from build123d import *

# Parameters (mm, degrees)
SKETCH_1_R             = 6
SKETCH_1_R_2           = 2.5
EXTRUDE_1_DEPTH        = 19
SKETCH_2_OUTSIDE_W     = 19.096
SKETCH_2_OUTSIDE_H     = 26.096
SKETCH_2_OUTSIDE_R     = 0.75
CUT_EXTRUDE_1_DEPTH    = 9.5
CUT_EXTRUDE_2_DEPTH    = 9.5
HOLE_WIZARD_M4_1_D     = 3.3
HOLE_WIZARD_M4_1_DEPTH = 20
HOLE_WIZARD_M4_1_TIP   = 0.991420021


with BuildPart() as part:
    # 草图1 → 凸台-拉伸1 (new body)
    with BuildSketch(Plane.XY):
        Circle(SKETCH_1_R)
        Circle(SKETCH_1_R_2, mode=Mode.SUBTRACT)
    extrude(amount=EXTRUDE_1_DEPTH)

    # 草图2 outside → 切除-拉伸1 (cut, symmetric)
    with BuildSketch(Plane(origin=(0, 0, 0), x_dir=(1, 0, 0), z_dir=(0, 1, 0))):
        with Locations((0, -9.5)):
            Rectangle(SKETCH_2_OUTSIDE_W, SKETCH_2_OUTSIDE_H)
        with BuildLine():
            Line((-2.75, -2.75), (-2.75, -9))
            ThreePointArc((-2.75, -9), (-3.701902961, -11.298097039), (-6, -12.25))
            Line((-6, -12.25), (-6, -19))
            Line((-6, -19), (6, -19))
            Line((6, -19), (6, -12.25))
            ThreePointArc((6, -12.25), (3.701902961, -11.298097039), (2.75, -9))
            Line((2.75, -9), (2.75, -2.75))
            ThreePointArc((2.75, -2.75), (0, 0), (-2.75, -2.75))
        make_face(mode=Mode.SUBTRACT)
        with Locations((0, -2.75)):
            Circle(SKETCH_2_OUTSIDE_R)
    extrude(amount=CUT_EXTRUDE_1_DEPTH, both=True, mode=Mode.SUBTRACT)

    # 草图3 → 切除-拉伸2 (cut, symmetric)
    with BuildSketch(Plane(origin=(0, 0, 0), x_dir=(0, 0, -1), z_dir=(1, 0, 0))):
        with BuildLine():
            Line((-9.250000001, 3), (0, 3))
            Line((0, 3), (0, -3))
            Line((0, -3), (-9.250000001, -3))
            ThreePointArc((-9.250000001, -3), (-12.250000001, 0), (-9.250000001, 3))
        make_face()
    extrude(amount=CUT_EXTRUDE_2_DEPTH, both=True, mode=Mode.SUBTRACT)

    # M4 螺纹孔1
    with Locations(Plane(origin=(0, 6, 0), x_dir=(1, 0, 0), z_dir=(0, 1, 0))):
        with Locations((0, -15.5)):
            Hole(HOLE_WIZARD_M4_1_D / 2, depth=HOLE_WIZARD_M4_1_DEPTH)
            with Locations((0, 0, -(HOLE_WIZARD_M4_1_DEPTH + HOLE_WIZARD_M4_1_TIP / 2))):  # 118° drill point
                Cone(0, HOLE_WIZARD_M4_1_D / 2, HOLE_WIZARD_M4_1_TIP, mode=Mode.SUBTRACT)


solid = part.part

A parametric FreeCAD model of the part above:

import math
import FreeCAD as App
import Part
import Sketcher
from FreeCAD import Vector

doc = App.newDocument("Part")
body = doc.addObject("PartDesign::Body", "Body")

# Sketch on XY plane
sketch1 = body.newObject("Sketcher::SketchObject", "Sketch")
sketch1.AttachmentSupport = (doc.getObject("XY_Plane"), [""])
sketch1.MapMode = "FlatFace"
sketch1.addGeometry([
    Part.Circle(Vector(0, 0, 0), Vector(0, 0, 1), 6),
    Part.Circle(Vector(0, 0, 0), Vector(0, 0, 1), 2.5),
], False)
sketch1.addConstraint([
    Sketcher.Constraint("Coincident", 0, 3, -1, 1),
    Sketcher.Constraint("Coincident", 1, 3, -1, 1),
    Sketcher.Constraint("Diameter", 0, 12.0),
    Sketcher.Constraint("Diameter", 1, 5.0),
])
pad1 = body.newObject("PartDesign::Pad", "Pad")
pad1.Profile = sketch1
pad1.Length = 19

# Sketch on XZ plane
sketch2 = body.newObject("Sketcher::SketchObject", "Sketch001")
sketch2.AttachmentSupport = (doc.getObject("XZ_Plane"), [""])
sketch2.MapMode = "FlatFace"
sketch2.addGeometry([
    Part.LineSegment(Vector(-9.5, -3.5, 0), Vector(-9.5, 22.5, 0)),  # 0
    Part.LineSegment(Vector(-9.5, 22.5, 0), Vector(9.5, 22.5, 0)),  # 1
    Part.LineSegment(Vector(9.5, 22.5, 0), Vector(9.5, -3.5, 0)),  # 2
    Part.LineSegment(Vector(9.5, -3.5, 0), Vector(-9.5, -3.5, 0)),  # 3
    Part.LineSegment(Vector(-2.8, 9, 0), Vector(-2.8, 2.8, 0)),  # 4
    Part.ArcOfCircle(Part.Circle(Vector(0, 2.8, 0), Vector(0, 0, 1), 2.8), math.radians(180), math.radians(360)),  # 5
    Part.LineSegment(Vector(2.8, 2.8, 0), Vector(2.8, 9, 0)),  # 6
    Part.ArcOfCircle(Part.Circle(Vector(6, 9, 0), Vector(0, 0, 1), 3.2), math.radians(90), math.radians(180)),  # 7
    Part.LineSegment(Vector(6, 12.2, 0), Vector(6, 19, 0)),  # 8
    Part.LineSegment(Vector(6, 19, 0), Vector(-6, 19, 0)),  # 9
    Part.LineSegment(Vector(-6, 19, 0), Vector(-6, 12.2, 0)),  # 10
    Part.ArcOfCircle(Part.Circle(Vector(-6, 9, 0), Vector(0, 0, 1), 3.2), math.radians(0), math.radians(90)),  # 11
    Part.Circle(Vector(0, 2.8, 0), Vector(0, 0, 1), 0.8),  # 12
], False)
sketch2.addConstraint([
    Sketcher.Constraint("Coincident", 0, 2, 1, 1),
    Sketcher.Constraint("Coincident", 1, 2, 2, 1),
    Sketcher.Constraint("Coincident", 2, 2, 3, 1),
    Sketcher.Constraint("Coincident", 3, 2, 0, 1),
    Sketcher.Constraint("Tangent", 4, 2, 5, 1),
    Sketcher.Constraint("Tangent", 5, 2, 6, 1),
    Sketcher.Constraint("Tangent", 6, 2, 7, 2),
    Sketcher.Constraint("Coincident", 7, 1, 8, 1),
    Sketcher.Constraint("Coincident", 8, 2, 9, 1),
    Sketcher.Constraint("Coincident", 9, 2, 10, 1),
    Sketcher.Constraint("Coincident", 10, 2, 11, 2),
    Sketcher.Constraint("Tangent", 11, 1, 4, 1),
    Sketcher.Constraint("Vertical", 0),
    Sketcher.Constraint("Horizontal", 1),
    Sketcher.Constraint("Vertical", 2),
    Sketcher.Constraint("Horizontal", 3),
    Sketcher.Constraint("Vertical", 4),
    Sketcher.Constraint("Vertical", 6),
    Sketcher.Constraint("Vertical", 8),
    Sketcher.Constraint("Horizontal", 9),
    Sketcher.Constraint("Vertical", 10),
    Sketcher.Constraint("Coincident", 12, 3, 5, 3),
    Sketcher.Constraint("Equal", 7, 11),
    Sketcher.Constraint("Symmetric", 7, 3, 11, 3, -2),
    Sketcher.Constraint("Vertical", 11, 3, 9, 2),
    Sketcher.Constraint("Diameter", 12, 1.5),
    Sketcher.Constraint("DistanceX", 9, 2, 9, 1, 12.0),
    Sketcher.Constraint("Radius", 5, 2.75),
    Sketcher.Constraint("Radius", 7, 3.25),
    Sketcher.Constraint("DistanceY", -1, 1, 7, 3, 9.0),
    Sketcher.Constraint("DistanceY", -1, 1, 8, 2, 19.0),
    Sketcher.Constraint("DistanceY", 4, 2, 4, 1, 6.25),
    Sketcher.Constraint("DistanceX", 1, 1, 1, 2, 19.096),
    Sketcher.Constraint("DistanceY", 0, 1, 0, 2, 26.096),
    Sketcher.Constraint("DistanceX", 0, 2, -1, 1, 9.548),
    Sketcher.Constraint("DistanceY", -1, 1, 0, 2, 22.548),
])
pocket1 = body.newObject("PartDesign::Pocket", "Pocket")
pocket1.Profile = sketch2
pocket1.Length = 19
pocket1.Midplane = True

# Sketch on YZ plane
sketch3 = body.newObject("Sketcher::SketchObject", "Sketch002")
sketch3.AttachmentSupport = (doc.getObject("YZ_Plane"), [""])
sketch3.MapMode = "FlatFace"
sketch3.addGeometry([
    Part.LineSegment(Vector(3, 0, 0), Vector(3, 9.3, 0)),
    Part.ArcOfCircle(Part.Circle(Vector(0, 9.3, 0), Vector(0, 0, 1), 3), math.radians(0), math.radians(180)),
    Part.LineSegment(Vector(-3, 9.3, 0), Vector(-3, 0, 0)),
    Part.LineSegment(Vector(-3, 0, 0), Vector(3, 0, 0)),
], False)
sketch3.addConstraint([
    Sketcher.Constraint("Tangent", 0, 2, 1, 1),
    Sketcher.Constraint("Tangent", 1, 2, 2, 1),
    Sketcher.Constraint("Coincident", 2, 2, 3, 1),
    Sketcher.Constraint("Coincident", 3, 2, 0, 1),
    Sketcher.Constraint("Vertical", 0),
    Sketcher.Constraint("Vertical", 2),
    Sketcher.Constraint("Horizontal", 3),
    Sketcher.Constraint("Symmetric", 2, 2, 3, 2, -1, 1),
    Sketcher.Constraint("Radius", 1, 3.0),
    Sketcher.Constraint("DistanceY", 0, 1, 0, 2, 9.25),
])
pocket2 = body.newObject("PartDesign::Pocket", "Pocket001")
pocket2.Profile = sketch3
pocket2.Length = 19
pocket2.Midplane = True

# Sketch on XZ plane
sketch4 = body.newObject("Sketcher::SketchObject", "Sketch003")
sketch4.AttachmentSupport = (doc.getObject("XZ_Plane"), [""])
sketch4.MapMode = "FlatFace"
sketch4.AttachmentOffset = App.Placement(Vector(0, 0, -6), App.Rotation())
sketch4.addGeometry(Part.Circle(Vector(0, 15.5, 0), Vector(0, 0, 1), 1.6), False)
sketch4.addConstraint([
    Sketcher.Constraint("PointOnObject", 0, 3, -2),
    Sketcher.Constraint("Diameter", 0, 3.3),
    Sketcher.Constraint("DistanceY", -1, 1, 0, 3, 15.5),
])
doc.recompute()
hole = body.newObject("PartDesign::Hole", "Hole")
hole.Profile = sketch4
hole.ThreadType = "None"
hole.Diameter = 3.3
hole.DepthType = "Dimension"
hole.Depth = 20
hole.DrillPoint = "Angled"
hole.DrillPointAngle = 118
hole.Reversed = True

doc.recompute()
